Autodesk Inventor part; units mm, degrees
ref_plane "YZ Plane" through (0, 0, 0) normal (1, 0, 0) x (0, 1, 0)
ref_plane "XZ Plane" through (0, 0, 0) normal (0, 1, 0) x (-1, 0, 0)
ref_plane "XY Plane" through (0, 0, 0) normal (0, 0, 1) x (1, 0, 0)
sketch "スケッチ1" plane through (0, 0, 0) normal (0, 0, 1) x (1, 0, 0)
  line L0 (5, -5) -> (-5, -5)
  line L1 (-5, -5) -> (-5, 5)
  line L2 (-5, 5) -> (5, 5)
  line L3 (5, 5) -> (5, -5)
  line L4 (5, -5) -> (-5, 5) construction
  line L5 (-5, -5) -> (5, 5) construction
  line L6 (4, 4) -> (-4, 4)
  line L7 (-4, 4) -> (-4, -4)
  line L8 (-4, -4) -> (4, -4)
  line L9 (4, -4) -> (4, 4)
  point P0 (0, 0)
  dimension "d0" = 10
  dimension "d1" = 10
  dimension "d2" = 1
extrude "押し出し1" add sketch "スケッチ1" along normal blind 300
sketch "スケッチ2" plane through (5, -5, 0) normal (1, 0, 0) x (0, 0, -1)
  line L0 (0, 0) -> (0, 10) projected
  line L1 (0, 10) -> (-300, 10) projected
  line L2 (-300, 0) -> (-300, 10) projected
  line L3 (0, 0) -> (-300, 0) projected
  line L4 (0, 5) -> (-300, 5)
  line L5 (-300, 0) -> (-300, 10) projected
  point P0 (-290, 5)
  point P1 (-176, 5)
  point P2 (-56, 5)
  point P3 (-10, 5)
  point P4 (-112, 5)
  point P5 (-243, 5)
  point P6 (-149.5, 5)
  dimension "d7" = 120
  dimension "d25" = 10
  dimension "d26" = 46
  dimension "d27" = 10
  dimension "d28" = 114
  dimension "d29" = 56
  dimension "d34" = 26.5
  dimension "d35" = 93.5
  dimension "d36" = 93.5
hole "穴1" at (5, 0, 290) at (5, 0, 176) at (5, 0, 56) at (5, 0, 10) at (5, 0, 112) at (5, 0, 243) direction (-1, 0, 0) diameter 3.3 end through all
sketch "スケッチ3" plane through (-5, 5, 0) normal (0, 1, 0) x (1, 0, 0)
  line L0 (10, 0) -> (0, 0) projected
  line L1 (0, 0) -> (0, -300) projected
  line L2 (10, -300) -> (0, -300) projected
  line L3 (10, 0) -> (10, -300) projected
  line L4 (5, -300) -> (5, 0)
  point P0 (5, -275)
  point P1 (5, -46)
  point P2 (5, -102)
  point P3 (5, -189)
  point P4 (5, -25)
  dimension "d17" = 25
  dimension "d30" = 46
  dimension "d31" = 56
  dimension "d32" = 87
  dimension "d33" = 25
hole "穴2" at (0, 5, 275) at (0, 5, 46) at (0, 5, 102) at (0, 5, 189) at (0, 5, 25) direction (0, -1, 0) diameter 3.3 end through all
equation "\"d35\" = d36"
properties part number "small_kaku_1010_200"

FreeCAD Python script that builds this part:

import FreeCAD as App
import Part
import Sketcher

V = App.Vector
Q = App.Units.Quantity


def add_polygon(sketch, points):
    """Adds a closed chain of lines whose ends are joined by coincident constraints."""
    first, n = sketch.GeometryCount, len(points)
    for a, b in zip(points, points[1:] + points[:1]):
        sketch.addGeometry(Part.LineSegment(App.Vector(*a, 0), App.Vector(*b, 0)), False)
    for i in range(n):
        sketch.addConstraint(Sketcher.Constraint("Coincident", first + i, 2, first + (i + 1) % n, 1))

doc = App.newDocument("Part")
params = doc.addObject("Spreadsheet::Sheet", "Params")
for row, (alias, value) in enumerate([
    ("sketch1_width", "10 mm"),
    ("pad1_length", "300 mm"),
    ("sketch2_diameter", "3.3 mm"),
    ("hole_diameter", "3.3 mm"),
    ("sketch3_diameter", "3.3 mm"),
    ("hole2_diameter", "3.3 mm"),
], start=1):
    params.set(f"A{row}", alias)
    params.set(f"B{row}", "=" + value)
    params.setAlias(f"B{row}", alias)

body = doc.addObject("PartDesign::Body", "Body")

# Sketch on XY plane
sketch1 = body.newObject("Sketcher::SketchObject", "Sketch")
sketch1.AttachmentSupport = (doc.getObject("XY_Plane"), [""])
sketch1.MapMode = "FlatFace"
add_polygon(sketch1, [(-5, -5), (5, -5), (5, 5), (-5, 5)])  # lines 0-3
add_polygon(sketch1, [(-4, 4), (4, 4), (4, -4), (-4, -4)])  # lines 4-7
sketch1.addConstraint(Sketcher.Constraint("Horizontal", 0))
sketch1.addConstraint(Sketcher.Constraint("Vertical", 1))
sketch1.addConstraint(Sketcher.Constraint("Horizontal", 2))
sketch1.addConstraint(Sketcher.Constraint("Vertical", 3))
sketch1.addConstraint(Sketcher.Constraint("Horizontal", 4))
sketch1.addConstraint(Sketcher.Constraint("Vertical", 5))
sketch1.addConstraint(Sketcher.Constraint("Horizontal", 6))
sketch1.addConstraint(Sketcher.Constraint("Vertical", 7))
sketch1.addConstraint(Sketcher.Constraint("Symmetric", 0, 2, 2, 2, -1, 1))
sketch1.addConstraint(Sketcher.Constraint("Symmetric", 4, 2, 6, 2, -1, 1))
sketch1.addConstraint(Sketcher.Constraint("Equal", 2, 1))
sketch1.addConstraint(Sketcher.Constraint("Equal", 6, 5))
sketch1.addConstraint(Sketcher.Constraint("DistanceX", 0, 1, 0, 2, Q("10 mm")))
sketch1.addConstraint(Sketcher.Constraint("DistanceX", 4, 2, 1, 2, Q("1 mm")))
sketch1.setExpression("Constraints[20]", "Params.sketch1_width")
pad1 = body.newObject("PartDesign::Pad", "Pad")
pad1.Profile = sketch1
pad1.setExpression("Length", "Params.pad1_length")

# Sketch on YZ plane
sketch2 = body.newObject("Sketcher::SketchObject", "Sketch001")
sketch2.AttachmentSupport = (doc.getObject("YZ_Plane"), [""])
sketch2.MapMode = "FlatFace"
sketch2.AttachmentOffset = App.Placement(V(0, 0, 5), App.Rotation())
sketch2.addGeometry(Part.Circle(V(0, 290, 0), V(0, 0, 1), 1.6), False)
sketch2.addGeometry(Part.Circle(V(0, 176, 0), V(0, 0, 1), 1.6), False)
sketch2.addGeometry(Part.Circle(V(0, 56, 0), V(0, 0, 1), 1.6), False)
sketch2.addGeometry(Part.Circle(V(0, 10, 0), V(0, 0, 1), 1.6), False)
sketch2.addGeometry(Part.Circle(V(0, 112, 0), V(0, 0, 1), 1.6), False)
sketch2.addGeometry(Part.Circle(V(0, 243, 0), V(0, 0, 1), 1.6), False)
sketch2.addConstraint(Sketcher.Constraint("Equal", 0, 1))
sketch2.addConstraint(Sketcher.Constraint("Equal", 1, 2))
sketch2.addConstraint(Sketcher.Constraint("Equal", 2, 3))
sketch2.addConstraint(Sketcher.Constraint("Equal", 3, 4))
sketch2.addConstraint(Sketcher.Constraint("Equal", 4, 5))
sketch2.addConstraint(Sketcher.Constraint("PointOnObject", 0, 3, -2))
sketch2.addConstraint(Sketcher.Constraint("PointOnObject", 1, 3, -2))
sketch2.addConstraint(Sketcher.Constraint("PointOnObject", 2, 3, -2))
sketch2.addConstraint(Sketcher.Constraint("PointOnObject", 3, 3, -2))
sketch2.addConstraint(Sketcher.Constraint("PointOnObject", 4, 3, -2))
sketch2.addConstraint(Sketcher.Constraint("PointOnObject", 5, 3, -2))
sketch2.addConstraint(Sketcher.Constraint("Diameter", 0, Q("3.3 mm")))
sketch2.addConstraint(Sketcher.Constraint("DistanceY", -1, 1, 0, 3, Q("290 mm")))
sketch2.addConstraint(Sketcher.Constraint("DistanceY", -1, 1, 1, 3, Q("176 mm")))
sketch2.addConstraint(Sketcher.Constraint("DistanceY", -1, 1, 2, 3, Q("56 mm")))
sketch2.addConstraint(Sketcher.Constraint("DistanceY", -1, 1, 3, 3, Q("10 mm")))
sketch2.addConstraint(Sketcher.Constraint("DistanceY", -1, 1, 4, 3, Q("112 mm")))
sketch2.addConstraint(Sketcher.Constraint("DistanceY", -1, 1, 5, 3, Q("243 mm")))
sketch2.setExpression("Constraints[11]", "Params.sketch2_diameter")
doc.recompute()
hole = body.newObject("PartDesign::Hole", "Hole")
hole.Profile = sketch2
hole.ThreadType = "None"
hole.setExpression("Diameter", "Params.hole_diameter")
hole.DepthType = "ThroughAll"

# Sketch on XZ plane
sketch3 = body.newObject("Sketcher::SketchObject", "Sketch002")
sketch3.AttachmentSupport = (doc.getObject("XZ_Plane"), [""])
sketch3.MapMode = "FlatFace"
sketch3.AttachmentOffset = App.Placement(V(0, 0, -5), App.Rotation())
sketch3.addGeometry(Part.Circle(V(0, 275, 0), V(0, 0, 1), 1.6), False)
sketch3.addGeometry(Part.Circle(V(0, 46, 0), V(0, 0, 1), 1.6), False)
sketch3.addGeometry(Part.Circle(V(0, 102, 0), V(0, 0, 1), 1.6), False)
sketch3.addGeometry(Part.Circle(V(0, 189, 0), V(0, 0, 1), 1.6), False)
sketch3.addGeometry(Part.Circle(V(0, 25, 0), V(0, 0, 1), 1.6), False)
sketch3.addConstraint(Sketcher.Constraint("Equal", 0, 1))
sketch3.addConstraint(Sketcher.Constraint("Equal", 1, 2))
sketch3.addConstraint(Sketcher.Constraint("Equal", 2, 3))
sketch3.addConstraint(Sketcher.Constraint("Equal", 3, 4))
sketch3.addConstraint(Sketcher.Constraint("PointOnObject", 0, 3, -2))
sketch3.addConstraint(Sketcher.Constraint("PointOnObject", 1, 3, -2))
sketch3.addConstraint(Sketcher.Constraint("PointOnObject", 2, 3, -2))
sketch3.addConstraint(Sketcher.Constraint("PointOnObject", 3, 3, -2))
sketch3.addConstraint(Sketcher.Constraint("PointOnObject", 4, 3, -2))
sketch3.addConstraint(Sketcher.Constraint("Diameter", 0, Q("3.3 mm")))
sketch3.addConstraint(Sketcher.Constraint("DistanceY", -1, 1, 0, 3, Q("275 mm")))
sketch3.addConstraint(Sketcher.Constraint("DistanceY", -1, 1, 1, 3, Q("46 mm")))
sketch3.addConstraint(Sketcher.Constraint("DistanceY", -1, 1, 2, 3, Q("102 mm")))
sketch3.addConstraint(Sketcher.Constraint("DistanceY", -1, 1, 3, 3, Q("189 mm")))
sketch3.addConstraint(Sketcher.Constraint("DistanceY", -1, 1, 4, 3, Q("25 mm")))
sketch3.setExpression("Constraints[9]", "Params.sketch3_diameter")
doc.recompute()
hole2 = body.newObject("PartDesign::Hole", "Hole001")
hole2.Profile = sketch3
hole2.ThreadType = "None"
hole2.setExpression("Diameter", "Params.hole2_diameter")
hole2.DepthType = "ThroughAll"
hole2.Reversed = True

doc.recompute()
